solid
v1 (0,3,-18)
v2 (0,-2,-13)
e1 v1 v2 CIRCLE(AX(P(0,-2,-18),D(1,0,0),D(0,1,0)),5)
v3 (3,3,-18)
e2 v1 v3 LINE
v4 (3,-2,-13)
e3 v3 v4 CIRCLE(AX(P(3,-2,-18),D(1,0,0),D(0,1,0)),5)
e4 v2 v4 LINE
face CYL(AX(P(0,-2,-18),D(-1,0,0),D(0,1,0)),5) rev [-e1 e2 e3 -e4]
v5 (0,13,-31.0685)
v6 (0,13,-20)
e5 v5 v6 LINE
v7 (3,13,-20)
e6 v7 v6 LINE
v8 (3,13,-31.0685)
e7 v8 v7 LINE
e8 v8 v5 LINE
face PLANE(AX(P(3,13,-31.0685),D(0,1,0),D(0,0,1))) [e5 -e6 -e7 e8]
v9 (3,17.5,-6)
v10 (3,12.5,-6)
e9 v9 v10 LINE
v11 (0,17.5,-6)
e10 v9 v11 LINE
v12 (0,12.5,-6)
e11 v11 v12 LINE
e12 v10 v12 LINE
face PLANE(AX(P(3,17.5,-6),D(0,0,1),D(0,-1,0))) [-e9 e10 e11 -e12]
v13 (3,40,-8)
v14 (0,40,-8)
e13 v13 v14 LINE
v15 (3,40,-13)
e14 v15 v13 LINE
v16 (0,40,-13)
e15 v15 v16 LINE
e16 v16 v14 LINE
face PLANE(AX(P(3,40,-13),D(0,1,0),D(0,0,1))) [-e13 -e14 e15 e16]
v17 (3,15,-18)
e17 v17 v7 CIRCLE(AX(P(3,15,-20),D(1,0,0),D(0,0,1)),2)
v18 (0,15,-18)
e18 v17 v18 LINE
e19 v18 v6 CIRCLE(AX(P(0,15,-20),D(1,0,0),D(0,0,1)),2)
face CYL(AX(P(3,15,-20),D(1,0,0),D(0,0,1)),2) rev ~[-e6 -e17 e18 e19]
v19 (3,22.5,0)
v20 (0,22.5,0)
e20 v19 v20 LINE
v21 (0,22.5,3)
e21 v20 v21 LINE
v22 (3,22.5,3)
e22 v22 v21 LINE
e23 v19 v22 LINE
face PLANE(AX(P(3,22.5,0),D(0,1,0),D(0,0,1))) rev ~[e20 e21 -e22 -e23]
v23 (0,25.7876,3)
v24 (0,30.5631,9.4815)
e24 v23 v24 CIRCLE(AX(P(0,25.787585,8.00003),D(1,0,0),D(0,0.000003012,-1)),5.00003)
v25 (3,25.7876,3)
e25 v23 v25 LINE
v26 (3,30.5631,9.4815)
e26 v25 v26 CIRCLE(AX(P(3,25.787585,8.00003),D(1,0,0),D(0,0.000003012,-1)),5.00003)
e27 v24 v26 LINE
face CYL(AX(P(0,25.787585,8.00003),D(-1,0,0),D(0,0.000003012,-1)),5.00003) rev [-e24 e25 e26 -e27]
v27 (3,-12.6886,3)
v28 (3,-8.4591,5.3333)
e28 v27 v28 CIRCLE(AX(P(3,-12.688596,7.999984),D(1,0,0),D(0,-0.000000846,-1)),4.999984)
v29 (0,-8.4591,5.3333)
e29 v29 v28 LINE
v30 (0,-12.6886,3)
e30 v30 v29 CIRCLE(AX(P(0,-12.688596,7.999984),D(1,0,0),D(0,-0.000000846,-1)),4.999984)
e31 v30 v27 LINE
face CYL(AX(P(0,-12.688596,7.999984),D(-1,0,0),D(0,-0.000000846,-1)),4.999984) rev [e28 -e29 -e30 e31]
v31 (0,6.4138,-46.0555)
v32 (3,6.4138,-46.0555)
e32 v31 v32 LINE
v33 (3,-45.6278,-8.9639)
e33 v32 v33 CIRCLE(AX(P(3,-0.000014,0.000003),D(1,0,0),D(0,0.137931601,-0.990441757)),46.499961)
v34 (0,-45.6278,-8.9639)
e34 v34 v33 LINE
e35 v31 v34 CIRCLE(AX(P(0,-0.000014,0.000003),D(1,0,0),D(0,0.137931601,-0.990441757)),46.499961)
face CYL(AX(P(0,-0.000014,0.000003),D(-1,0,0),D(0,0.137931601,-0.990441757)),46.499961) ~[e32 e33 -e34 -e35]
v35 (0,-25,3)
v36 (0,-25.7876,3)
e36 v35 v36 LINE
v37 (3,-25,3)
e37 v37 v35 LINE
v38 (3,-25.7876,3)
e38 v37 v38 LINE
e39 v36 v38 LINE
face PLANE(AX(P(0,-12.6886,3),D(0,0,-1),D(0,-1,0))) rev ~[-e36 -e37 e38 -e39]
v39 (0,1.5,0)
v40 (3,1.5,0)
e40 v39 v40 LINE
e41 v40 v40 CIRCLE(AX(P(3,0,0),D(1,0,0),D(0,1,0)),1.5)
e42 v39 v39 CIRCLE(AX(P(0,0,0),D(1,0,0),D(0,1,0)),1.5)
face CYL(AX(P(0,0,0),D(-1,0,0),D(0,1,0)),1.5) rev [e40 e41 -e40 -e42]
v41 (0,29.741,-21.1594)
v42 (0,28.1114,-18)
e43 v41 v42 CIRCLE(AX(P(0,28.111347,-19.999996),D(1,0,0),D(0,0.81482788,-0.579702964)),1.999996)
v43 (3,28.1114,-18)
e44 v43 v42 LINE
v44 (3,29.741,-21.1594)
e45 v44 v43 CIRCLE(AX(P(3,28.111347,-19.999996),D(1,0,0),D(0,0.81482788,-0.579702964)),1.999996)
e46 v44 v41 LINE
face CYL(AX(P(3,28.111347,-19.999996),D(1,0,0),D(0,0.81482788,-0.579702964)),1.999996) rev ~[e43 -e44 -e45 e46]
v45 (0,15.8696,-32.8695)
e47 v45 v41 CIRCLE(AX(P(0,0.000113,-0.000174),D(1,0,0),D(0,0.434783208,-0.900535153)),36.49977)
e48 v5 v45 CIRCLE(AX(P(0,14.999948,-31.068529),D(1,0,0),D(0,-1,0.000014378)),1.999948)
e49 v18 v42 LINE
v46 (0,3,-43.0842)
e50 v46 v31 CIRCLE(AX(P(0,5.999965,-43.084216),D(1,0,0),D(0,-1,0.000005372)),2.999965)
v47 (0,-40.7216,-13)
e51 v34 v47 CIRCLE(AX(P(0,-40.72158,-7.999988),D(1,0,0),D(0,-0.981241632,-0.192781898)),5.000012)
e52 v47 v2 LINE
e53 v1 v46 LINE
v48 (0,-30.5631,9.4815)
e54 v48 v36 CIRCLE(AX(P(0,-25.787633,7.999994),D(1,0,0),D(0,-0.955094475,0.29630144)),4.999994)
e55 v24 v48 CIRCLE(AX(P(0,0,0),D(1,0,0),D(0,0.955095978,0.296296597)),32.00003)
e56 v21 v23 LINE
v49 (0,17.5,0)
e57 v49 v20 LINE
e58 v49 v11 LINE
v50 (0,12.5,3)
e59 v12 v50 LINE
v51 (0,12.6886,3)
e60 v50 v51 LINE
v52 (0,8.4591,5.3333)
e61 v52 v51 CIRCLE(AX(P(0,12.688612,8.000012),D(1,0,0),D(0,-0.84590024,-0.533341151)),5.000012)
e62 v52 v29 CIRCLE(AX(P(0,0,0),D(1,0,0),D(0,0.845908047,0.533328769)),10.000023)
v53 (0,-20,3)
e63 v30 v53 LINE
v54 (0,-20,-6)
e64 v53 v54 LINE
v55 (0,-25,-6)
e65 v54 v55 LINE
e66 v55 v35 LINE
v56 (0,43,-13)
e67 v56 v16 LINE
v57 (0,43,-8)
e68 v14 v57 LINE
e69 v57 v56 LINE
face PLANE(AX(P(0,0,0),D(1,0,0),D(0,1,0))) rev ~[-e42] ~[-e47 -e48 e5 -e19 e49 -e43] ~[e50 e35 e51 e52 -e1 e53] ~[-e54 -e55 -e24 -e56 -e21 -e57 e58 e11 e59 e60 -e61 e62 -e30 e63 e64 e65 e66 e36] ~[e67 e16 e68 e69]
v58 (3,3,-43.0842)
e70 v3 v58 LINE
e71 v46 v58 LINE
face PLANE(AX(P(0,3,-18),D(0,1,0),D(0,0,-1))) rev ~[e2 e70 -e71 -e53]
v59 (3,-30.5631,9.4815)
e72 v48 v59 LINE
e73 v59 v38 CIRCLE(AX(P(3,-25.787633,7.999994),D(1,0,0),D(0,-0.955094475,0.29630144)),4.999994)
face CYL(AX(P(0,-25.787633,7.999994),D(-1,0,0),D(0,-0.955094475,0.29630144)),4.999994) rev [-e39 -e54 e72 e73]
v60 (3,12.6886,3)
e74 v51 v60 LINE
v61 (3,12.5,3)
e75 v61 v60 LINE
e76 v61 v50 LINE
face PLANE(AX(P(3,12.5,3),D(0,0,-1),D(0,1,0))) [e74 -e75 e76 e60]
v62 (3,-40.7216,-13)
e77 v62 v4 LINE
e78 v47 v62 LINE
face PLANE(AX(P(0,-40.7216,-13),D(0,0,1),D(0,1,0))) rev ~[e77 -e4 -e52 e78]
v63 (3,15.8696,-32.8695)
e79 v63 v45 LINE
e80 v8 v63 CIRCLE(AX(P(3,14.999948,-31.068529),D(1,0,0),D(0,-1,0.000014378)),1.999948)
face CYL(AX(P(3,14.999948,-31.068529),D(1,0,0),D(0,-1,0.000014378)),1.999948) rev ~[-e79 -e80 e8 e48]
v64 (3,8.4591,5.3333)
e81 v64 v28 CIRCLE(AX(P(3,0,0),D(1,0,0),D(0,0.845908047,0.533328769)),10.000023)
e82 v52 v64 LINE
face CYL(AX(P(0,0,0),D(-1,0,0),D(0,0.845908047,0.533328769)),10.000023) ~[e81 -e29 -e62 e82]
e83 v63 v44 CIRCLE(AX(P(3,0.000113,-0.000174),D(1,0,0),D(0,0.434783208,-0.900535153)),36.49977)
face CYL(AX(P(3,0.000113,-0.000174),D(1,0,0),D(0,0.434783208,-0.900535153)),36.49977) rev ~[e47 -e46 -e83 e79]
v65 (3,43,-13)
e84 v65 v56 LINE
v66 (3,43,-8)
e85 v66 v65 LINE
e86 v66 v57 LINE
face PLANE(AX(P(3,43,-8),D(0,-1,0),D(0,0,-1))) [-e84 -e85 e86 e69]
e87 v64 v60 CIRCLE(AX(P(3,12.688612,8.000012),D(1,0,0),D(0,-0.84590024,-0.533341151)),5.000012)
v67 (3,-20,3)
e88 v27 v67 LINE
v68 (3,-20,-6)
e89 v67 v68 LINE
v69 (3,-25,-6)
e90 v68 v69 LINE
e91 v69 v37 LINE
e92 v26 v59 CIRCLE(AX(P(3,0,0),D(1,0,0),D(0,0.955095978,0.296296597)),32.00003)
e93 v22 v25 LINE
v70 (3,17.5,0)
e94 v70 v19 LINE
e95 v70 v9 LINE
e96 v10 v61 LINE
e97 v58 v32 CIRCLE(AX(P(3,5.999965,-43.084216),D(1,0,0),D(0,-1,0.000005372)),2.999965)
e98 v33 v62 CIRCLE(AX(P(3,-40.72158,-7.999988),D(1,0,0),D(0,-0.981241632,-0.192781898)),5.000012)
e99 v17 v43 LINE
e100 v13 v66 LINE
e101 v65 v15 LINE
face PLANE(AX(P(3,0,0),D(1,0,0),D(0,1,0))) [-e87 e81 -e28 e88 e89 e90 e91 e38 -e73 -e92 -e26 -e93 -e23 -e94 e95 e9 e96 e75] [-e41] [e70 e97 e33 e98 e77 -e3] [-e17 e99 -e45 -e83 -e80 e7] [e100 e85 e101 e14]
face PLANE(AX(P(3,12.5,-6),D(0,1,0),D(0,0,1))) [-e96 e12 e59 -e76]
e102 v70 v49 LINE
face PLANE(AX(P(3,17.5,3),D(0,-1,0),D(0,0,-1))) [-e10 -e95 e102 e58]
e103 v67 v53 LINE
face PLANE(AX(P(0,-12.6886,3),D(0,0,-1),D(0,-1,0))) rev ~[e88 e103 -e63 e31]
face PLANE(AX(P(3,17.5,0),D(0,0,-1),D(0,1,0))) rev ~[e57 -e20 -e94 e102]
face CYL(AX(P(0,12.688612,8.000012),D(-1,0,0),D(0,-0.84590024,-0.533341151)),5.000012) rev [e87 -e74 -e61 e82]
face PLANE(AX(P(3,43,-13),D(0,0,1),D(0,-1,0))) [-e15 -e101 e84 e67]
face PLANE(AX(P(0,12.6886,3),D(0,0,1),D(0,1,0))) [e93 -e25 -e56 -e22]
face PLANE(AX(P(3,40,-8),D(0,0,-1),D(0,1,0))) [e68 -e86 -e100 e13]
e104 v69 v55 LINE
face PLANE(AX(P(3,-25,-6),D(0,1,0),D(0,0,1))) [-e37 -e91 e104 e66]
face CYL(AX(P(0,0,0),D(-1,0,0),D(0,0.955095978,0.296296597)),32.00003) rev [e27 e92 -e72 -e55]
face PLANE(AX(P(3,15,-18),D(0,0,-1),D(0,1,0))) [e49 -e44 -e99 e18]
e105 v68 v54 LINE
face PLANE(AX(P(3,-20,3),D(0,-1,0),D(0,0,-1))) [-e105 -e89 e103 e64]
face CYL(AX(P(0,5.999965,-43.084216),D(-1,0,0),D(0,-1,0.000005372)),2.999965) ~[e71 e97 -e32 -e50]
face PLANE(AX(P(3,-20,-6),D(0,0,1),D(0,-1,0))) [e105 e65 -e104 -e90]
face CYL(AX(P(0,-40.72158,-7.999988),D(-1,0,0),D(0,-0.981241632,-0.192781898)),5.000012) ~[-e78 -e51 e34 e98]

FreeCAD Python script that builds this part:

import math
import FreeCAD as App
import Part
import Sketcher


def add_polygon(sketch, points):
    """Adds a closed chain of lines whose ends are joined by coincident constraints."""
    first, n = sketch.GeometryCount, len(points)
    for a, b in zip(points, points[1:] + points[:1]):
        sketch.addGeometry(Part.LineSegment(App.Vector(*a, 0), App.Vector(*b, 0)), False)
    for i in range(n):
        sketch.addConstraint(Sketcher.Constraint("Coincident", first + i, 2, first + (i + 1) % n, 1))

doc = App.newDocument("Part")
body = doc.addObject("PartDesign::Body", "Body")

sketch1 = body.newObject("Sketcher::SketchObject", "Sketch")
sketch1.AttachmentSupport = (doc.getObject("YZ_Plane"), [""])
sketch1.MapMode = "FlatFace"
sketch1.addGeometry(Part.ArcOfCircle(Part.Circle(App.Vector(-40.7, -8, 0), App.Vector(0, 0, 1), 5), math.radians(-169), math.radians(-90)), False)
sketch1.addGeometry(Part.LineSegment(App.Vector(-40.7, -13, 0), App.Vector(-2, -13, 0)), False)
sketch1.addGeometry(Part.ArcOfCircle(Part.Circle(App.Vector(-2, -18, 0), App.Vector(0, 0, 1), 5), math.radians(0), math.radians(90)), False)
sketch1.addGeometry(Part.LineSegment(App.Vector(3, -18, 0), App.Vector(3, -43.1, 0)), False)
sketch1.addGeometry(Part.ArcOfCircle(Part.Circle(App.Vector(6, -43.1, 0), App.Vector(0, 0, 1), 3), math.radians(180), math.radians(278)), False)
sketch1.addGeometry(Part.ArcOfCircle(Part.Circle(App.Vector(0, 0, 0), App.Vector(0, 0, 1), 46.5), math.radians(-82), math.radians(191)), False)
sketch1.addGeometry(Part.Circle(App.Vector(0, 0, 0), App.Vector(0, 0, 1), 1.5), False)
sketch1.addGeometry(Part.ArcOfCircle(Part.Circle(App.Vector(0, 0, 0), App.Vector(0, 0, 1), 32), math.radians(17), math.radians(163)), False)
sketch1.addGeometry(Part.ArcOfCircle(Part.Circle(App.Vector(25.8, 8, 0), App.Vector(0, 0, 1), 5), math.radians(-90), math.radians(17)), False)
sketch1.addGeometry(Part.LineSegment(App.Vector(25.8, 3, 0), App.Vector(12.7, 3, 0)), False)
sketch1.addGeometry(Part.ArcOfCircle(Part.Circle(App.Vector(12.7, 8, 0), App.Vector(0, 0, 1), 5), math.radians(-148), math.radians(-90)), False)
sketch1.addGeometry(Part.ArcOfCircle(Part.Circle(App.Vector(0, 0, 0), App.Vector(0, 0, 1), 10), math.radians(32), math.radians(148)), False)
sketch1.addGeometry(Part.ArcOfCircle(Part.Circle(App.Vector(-12.7, 8, 0), App.Vector(0, 0, 1), 5), math.radians(-90), math.radians(-32)), False)
sketch1.addGeometry(Part.LineSegment(App.Vector(-12.7, 3, 0), App.Vector(-25.8, 3, 0)), False)
sketch1.addGeometry(Part.ArcOfCircle(Part.Circle(App.Vector(-25.8, 8, 0), App.Vector(0, 0, 1), 5), math.radians(163), math.radians(270)), False)
sketch1.addConstraint(Sketcher.Constraint("Tangent", 0, 2, 1, 1))
sketch1.addConstraint(Sketcher.Constraint("Tangent", 1, 2, 2, 2))
sketch1.addConstraint(Sketcher.Constraint("Tangent", 2, 1, 3, 1))
sketch1.addConstraint(Sketcher.Constraint("Tangent", 3, 2, 4, 1))
sketch1.addConstraint(Sketcher.Constraint("Tangent", 4, 2, 5, 1))
sketch1.addConstraint(Sketcher.Constraint("Tangent", 5, 2, 0, 1))
sketch1.addConstraint(Sketcher.Constraint("Tangent", 7, 1, 8, 2))
sketch1.addConstraint(Sketcher.Constraint("Tangent", 8, 1, 9, 1))
sketch1.addConstraint(Sketcher.Constraint("Tangent", 9, 2, 10, 2))
sketch1.addConstraint(Sketcher.Constraint("Tangent", 10, 1, 11, 1))
sketch1.addConstraint(Sketcher.Constraint("Tangent", 11, 2, 12, 2))
sketch1.addConstraint(Sketcher.Constraint("Tangent", 12, 1, 13, 1))
sketch1.addConstraint(Sketcher.Constraint("Tangent", 13, 2, 14, 2))
sketch1.addConstraint(Sketcher.Constraint("Tangent", 14, 1, 7, 2))
sketch1.addConstraint(Sketcher.Constraint("Horizontal", 1))
sketch1.addConstraint(Sketcher.Constraint("Vertical", 3))
sketch1.addConstraint(Sketcher.Constraint("Horizontal", 9))
sketch1.addConstraint(Sketcher.Constraint("Horizontal", 13))
sketch1.addConstraint(Sketcher.Constraint("Coincident", 5, 3, -1, 1))
sketch1.addConstraint(Sketcher.Constraint("Coincident", 6, 3, -1, 1))
sketch1.addConstraint(Sketcher.Constraint("Coincident", 7, 3, -1, 1))
sketch1.addConstraint(Sketcher.Constraint("Coincident", 11, 3, -1, 1))
sketch1.addConstraint(Sketcher.Constraint("Equal", 0, 2))
sketch1.addConstraint(Sketcher.Constraint("Equal", 2, 8))
sketch1.addConstraint(Sketcher.Constraint("Equal", 8, 10))
sketch1.addConstraint(Sketcher.Constraint("Equal", 10, 12))
sketch1.addConstraint(Sketcher.Constraint("Equal", 12, 14))
sketch1.addConstraint(Sketcher.Constraint("Horizontal", 10, 3, 12, 3))
sketch1.addConstraint(Sketcher.Constraint("Diameter", 6, 3.0))
sketch1.addConstraint(Sketcher.Constraint("Radius", 0, 5.0))
sketch1.addConstraint(Sketcher.Constraint("Radius", 4, 3.0))
sketch1.addConstraint(Sketcher.Constraint("Radius", 7, 32.0))
sketch1.addConstraint(Sketcher.Constraint("Radius", 11, 10.0))
sketch1.addConstraint(Sketcher.Constraint("Radius", 5, 46.5))
sketch1.addConstraint(Sketcher.Constraint("DistanceX", -1, 1, 2, 1, 3.0))
sketch1.addConstraint(Sketcher.Constraint("DistanceY", -1, 1, 8, 1, 3.0))
sketch1.addConstraint(Sketcher.Constraint("DistanceY", 0, 3, 14, 3, 16.0))
pad1 = body.newObject("PartDesign::Pad", "Pad")
pad1.Profile = sketch1
pad1.Length = 3

sketch2 = body.newObject("Sketcher::SketchObject", "Sketch001")
sketch2.AttachmentSupport = (doc.getObject("YZ_Plane"), [""])
sketch2.MapMode = "FlatFace"
sketch2.AttachmentOffset = App.Placement(App.Vector(0, 0, 3), App.Rotation())
add_polygon(sketch2, [(43, -13), (43, -8), (40, -8), (40, -13)])
sketch2.addConstraint(Sketcher.Constraint("Vertical", 0))
sketch2.addConstraint(Sketcher.Constraint("Horizontal", 1))
sketch2.addConstraint(Sketcher.Constraint("Vertical", 2))
sketch2.addConstraint(Sketcher.Constraint("Horizontal", 3))
sketch2.addConstraint(Sketcher.Constraint("DistanceX", 1, 2, 1, 1, 3.0))
sketch2.addConstraint(Sketcher.Constraint("DistanceY", 0, 1, 0, 2, 5.0))
sketch2.addConstraint(Sketcher.Constraint("DistanceY", 0, 2, -1, 1, 8.0))
sketch2.addConstraint(Sketcher.Constraint("DistanceX", -1, 1, 1, 2, 40.0))
pocket1 = body.newObject("PartDesign::Pocket", "Pocket")
pocket1.Profile = sketch2
pocket1.Type = "ThroughAll"

sketch3 = body.newObject("Sketcher::SketchObject", "Sketch002")
sketch3.AttachmentSupport = (doc.getObject("YZ_Plane"), [""])
sketch3.MapMode = "FlatFace"
sketch3.AttachmentOffset = App.Placement(App.Vector(0, 0, 3), App.Rotation())
add_polygon(sketch3, [(18, -6), (18, 3), (12, 3), (12, -6)])
add_polygon(sketch3, [(-20, -6), (-20, 3), (-25, 3), (-25, -6)])
sketch3.addConstraint(Sketcher.Constraint("Vertical", 0))
sketch3.addConstraint(Sketcher.Constraint("Horizontal", 1))
sketch3.addConstraint(Sketcher.Constraint("Vertical", 2))
sketch3.addConstraint(Sketcher.Constraint("Horizontal", 3))
sketch3.addConstraint(Sketcher.Constraint("Vertical", 4))
sketch3.addConstraint(Sketcher.Constraint("Horizontal", 5))
sketch3.addConstraint(Sketcher.Constraint("Vertical", 6))
sketch3.addConstraint(Sketcher.Constraint("Horizontal", 7))
sketch3.addConstraint(Sketcher.Constraint("Horizontal", 1, 2, 4, 2))
sketch3.addConstraint(Sketcher.Constraint("Horizontal", 3, 2, 6, 2))
sketch3.addConstraint(Sketcher.Constraint("Equal", 3, 5))
sketch3.addConstraint(Sketcher.Constraint("DistanceX", 1, 2, 1, 1, 5.0))
sketch3.addConstraint(Sketcher.Constraint("DistanceY", 0, 1, 0, 2, 9.0))
sketch3.addConstraint(Sketcher.Constraint("DistanceX", 4, 2, -1, 1, 20.0))
sketch3.addConstraint(Sketcher.Constraint("DistanceX", -1, 1, 1, 2, 12.5))
sketch3.addConstraint(Sketcher.Constraint("DistanceY", -1, 1, 0, 2, 3.0))
pocket2 = body.newObject("PartDesign::Pocket", "Pocket001")
pocket2.Profile = sketch3
pocket2.Type = "ThroughAll"

sketch4 = body.newObject("Sketcher::SketchObject", "Sketch003")
sketch4.AttachmentSupport = (doc.getObject("YZ_Plane"), [""])
sketch4.MapMode = "FlatFace"
sketch4.AttachmentOffset = App.Placement(App.Vector(0, 0, 3), App.Rotation())
add_polygon(sketch4, [(22.5, 3), (17.5, 3), (17.5, 0), (22.5, 0)])
sketch4.addConstraint(Sketcher.Constraint("Horizontal", 0))
sketch4.addConstraint(Sketcher.Constraint("Vertical", 1))
sketch4.addConstraint(Sketcher.Constraint("Horizontal", 2))
sketch4.addConstraint(Sketcher.Constraint("Vertical", 3))
sketch4.addConstraint(Sketcher.Constraint("PointOnObject", 1, 2, -1))
sketch4.addConstraint(Sketcher.Constraint("DistanceX", 0, 2, 0, 1, 5.0))
sketch4.addConstraint(Sketcher.Constraint("DistanceY", 1, 2, 1, 1, 3.0))
sketch4.addConstraint(Sketcher.Constraint("DistanceX", -1, 1, 0, 2, 17.5))
pocket3 = body.newObject("PartDesign::Pocket", "Pocket002")
pocket3.Profile = sketch4
pocket3.Type = "ThroughAll"

sketch5 = body.newObject("Sketcher::SketchObject", "Sketch004")
sketch5.AttachmentSupport = (doc.getObject("YZ_Plane"), [""])
sketch5.MapMode = "FlatFace"
sketch5.AttachmentOffset = App.Placement(App.Vector(0, 0, 3), App.Rotation())
sketch5.addGeometry(Part.ArcOfCircle(Part.Circle(App.Vector(15, -31.1, 0), App.Vector(0, 0, 1), 2), math.radians(180), math.radians(296)), False)
sketch5.addGeometry(Part.ArcOfCircle(Part.Circle(App.Vector(0, 0, 0), App.Vector(0, 0, 1), 36.5), math.radians(-64), math.radians(-35)), False)
sketch5.addGeometry(Part.ArcOfCircle(Part.Circle(App.Vector(28.1, -20, 0), App.Vector(0, 0, 1), 2), math.radians(-35), math.radians(90)), False)
sketch5.addGeometry(Part.LineSegment(App.Vector(28.1, -18, 0), App.Vector(15, -18, 0)), False)
sketch5.addGeometry(Part.ArcOfCircle(Part.Circle(App.Vector(15, -20, 0), App.Vector(0, 0, 1), 2), math.radians(90), math.radians(180)), False)
sketch5.addGeometry(Part.LineSegment(App.Vector(13, -20, 0), App.Vector(13, -31.1, 0)), False)
sketch5.addConstraint(Sketcher.Constraint("Tangent", 0, 2, 1, 1))
sketch5.addConstraint(Sketcher.Constraint("Tangent", 1, 2, 2, 1))
sketch5.addConstraint(Sketcher.Constraint("Tangent", 2, 2, 3, 1))
sketch5.addConstraint(Sketcher.Constraint("Tangent", 3, 2, 4, 1))
sketch5.addConstraint(Sketcher.Constraint("Tangent", 4, 2, 5, 1))
sketch5.addConstraint(Sketcher.Constraint("Tangent", 5, 2, 0, 1))
sketch5.addConstraint(Sketcher.Constraint("Horizontal", 3))
sketch5.addConstraint(Sketcher.Constraint("Vertical", 5))
sketch5.addConstraint(Sketcher.Constraint("Coincident", 1, 3, -1, 1))
sketch5.addConstraint(Sketcher.Constraint("Equal", 0, 2))
sketch5.addConstraint(Sketcher.Constraint("Equal", 2, 4))
sketch5.addConstraint(Sketcher.Constraint("Radius", 0, 2.0))
sketch5.addConstraint(Sketcher.Constraint("Radius", 1, 36.5))
sketch5.addConstraint(Sketcher.Constraint("DistanceX", -1, 1, 0, 3, 15.0))
sketch5.addConstraint(Sketcher.Constraint("DistanceY", 2, 3, -1, 1, 20.0))
pocket4 = body.newObject("PartDesign::Pocket", "Pocket003")
pocket4.Profile = sketch5
pocket4.Type = "ThroughAll"

doc.recompute()
